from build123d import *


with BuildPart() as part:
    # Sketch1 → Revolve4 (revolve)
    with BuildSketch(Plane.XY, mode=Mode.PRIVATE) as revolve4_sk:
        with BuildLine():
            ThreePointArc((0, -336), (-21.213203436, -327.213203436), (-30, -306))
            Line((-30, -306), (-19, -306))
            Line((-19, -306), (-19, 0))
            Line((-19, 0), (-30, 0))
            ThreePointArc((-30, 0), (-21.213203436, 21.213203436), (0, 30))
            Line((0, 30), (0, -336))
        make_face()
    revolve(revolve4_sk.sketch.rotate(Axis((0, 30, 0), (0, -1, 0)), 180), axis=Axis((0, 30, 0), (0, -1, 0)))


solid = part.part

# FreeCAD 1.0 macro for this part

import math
import FreeCAD as App
import Part
import Sketcher

V = App.Vector

doc = App.newDocument("Part")
params = doc.addObject("Spreadsheet::Sheet", "Params")
for row, (alias, value) in enumerate([
    ("sketch1_radius", "30 mm"),
    ("sketch1_width", "11 mm"),
    ("sketch1_height", "366 mm"),
    ("revolution_angle", "360 deg"),
], start=1):
    params.set(f"A{row}", alias)
    params.set(f"B{row}", "=" + value)
    params.setAlias(f"B{row}", alias)

body = doc.addObject("PartDesign::Body", "Body")

# Sketch on XY plane
sketch1 = body.newObject("Sketcher::SketchObject", "Sketch")
sketch1.AttachmentSupport = (doc.getObject("XY_Plane"), [""])
sketch1.MapMode = "FlatFace"
sketch1.addGeometry([
    Part.ArcOfCircle(Part.Circle(V(0, -306, 0), V(0, 0, 1), 30), math.radians(180), math.radians(270)),  # 0
    Part.LineSegment(V(0, -336, 0), V(0, 30, 0)),  # 1
    Part.ArcOfCircle(Part.Circle(V(0, 0, 0), V(0, 0, 1), 30), math.radians(90), math.radians(180)),  # 2
    Part.LineSegment(V(-30, 0, 0), V(-19, 0, 0)),  # 3
    Part.LineSegment(V(-19, 0, 0), V(-19, -306, 0)),  # 4
    Part.LineSegment(V(-19, -306, 0), V(-30, -306, 0)),  # 5
], False)
sketch1.addConstraint([
    Sketcher.Constraint("Coincident", 0, 2, 1, 1),
    Sketcher.Constraint("Coincident", 1, 2, 2, 1),
    Sketcher.Constraint("Coincident", 2, 2, 3, 1),
    Sketcher.Constraint("Coincident", 3, 2, 4, 1),
    Sketcher.Constraint("Coincident", 4, 2, 5, 1),
    Sketcher.Constraint("Coincident", 5, 2, 0, 1),
    Sketcher.Constraint("Vertical", 1),
    Sketcher.Constraint("Horizontal", 3),
    Sketcher.Constraint("Vertical", 4),
    Sketcher.Constraint("Horizontal", 5),
    Sketcher.Constraint("Coincident", 2, 3, -1, 1),
    Sketcher.Constraint("Equal", 0, 2),
    Sketcher.Constraint("PointOnObject", 0, 3, -2),
    Sketcher.Constraint("PointOnObject", 0, 2, -2),
    Sketcher.Constraint("PointOnObject", 2, 2, -1),
    Sketcher.Constraint("Horizontal", 0, 3, 4, 2),
    Sketcher.Constraint("Radius", 0, 30.0),
    Sketcher.Constraint("DistanceX", 3, 1, 3, 2, 11.0),
    Sketcher.Constraint("DistanceY", 1, 1, 1, 2, 366.0),
])
sketch1.setExpression("Constraints[16]", "Params.sketch1_radius")
sketch1.setExpression("Constraints[17]", "Params.sketch1_width")
sketch1.setExpression("Constraints[18]", "Params.sketch1_height")
revolution = body.newObject("PartDesign::Revolution", "Revolution")
revolution.Profile = sketch1
revolution.ReferenceAxis = (sketch1, ["V_Axis"])
revolution.setExpression("Angle", "Params.revolution_angle")

doc.recompute()
